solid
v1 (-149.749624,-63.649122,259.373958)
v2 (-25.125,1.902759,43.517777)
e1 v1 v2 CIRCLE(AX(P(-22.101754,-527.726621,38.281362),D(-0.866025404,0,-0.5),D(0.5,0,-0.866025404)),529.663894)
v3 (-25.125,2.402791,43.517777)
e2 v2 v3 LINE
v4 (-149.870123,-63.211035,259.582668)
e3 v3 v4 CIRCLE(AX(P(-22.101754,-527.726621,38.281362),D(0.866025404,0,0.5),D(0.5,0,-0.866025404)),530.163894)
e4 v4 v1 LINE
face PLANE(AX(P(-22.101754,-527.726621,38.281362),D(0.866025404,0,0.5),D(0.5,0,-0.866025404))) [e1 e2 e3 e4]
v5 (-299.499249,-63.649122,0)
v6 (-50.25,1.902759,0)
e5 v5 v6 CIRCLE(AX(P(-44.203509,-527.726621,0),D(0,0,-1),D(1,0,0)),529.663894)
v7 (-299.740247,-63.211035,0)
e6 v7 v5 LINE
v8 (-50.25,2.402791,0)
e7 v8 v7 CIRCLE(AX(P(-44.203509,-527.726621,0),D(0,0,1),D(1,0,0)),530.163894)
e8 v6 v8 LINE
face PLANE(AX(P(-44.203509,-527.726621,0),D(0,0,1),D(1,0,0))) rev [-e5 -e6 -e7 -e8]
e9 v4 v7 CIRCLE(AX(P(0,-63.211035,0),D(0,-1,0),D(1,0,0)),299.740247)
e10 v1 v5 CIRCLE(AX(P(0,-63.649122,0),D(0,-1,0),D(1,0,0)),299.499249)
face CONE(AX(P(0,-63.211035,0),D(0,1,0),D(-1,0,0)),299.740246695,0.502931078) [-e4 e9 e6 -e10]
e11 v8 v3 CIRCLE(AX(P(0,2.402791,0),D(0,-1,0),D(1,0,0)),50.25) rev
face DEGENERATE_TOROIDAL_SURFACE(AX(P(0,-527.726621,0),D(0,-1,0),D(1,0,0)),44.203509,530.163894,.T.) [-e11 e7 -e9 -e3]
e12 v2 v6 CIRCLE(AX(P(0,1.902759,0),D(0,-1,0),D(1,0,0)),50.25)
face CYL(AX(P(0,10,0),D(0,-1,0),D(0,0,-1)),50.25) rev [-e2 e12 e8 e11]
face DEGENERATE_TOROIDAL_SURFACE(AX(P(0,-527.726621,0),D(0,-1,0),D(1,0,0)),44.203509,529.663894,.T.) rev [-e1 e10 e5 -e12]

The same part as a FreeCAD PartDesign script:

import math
import FreeCAD as App
import Part
import Sketcher
Q = App.Units.Quantity

doc = App.newDocument("Part")
params = doc.addObject("Spreadsheet::Sheet", "Params")
for row, (alias, value) in enumerate([
    ("sketch1_width", "35 mm"),
    ("sketch1_height", "0.5 mm"),
    ("revolution_angle", "60 deg"),
    ("sketch2_diameter", "100.5 mm"),
    ("pocket1_length", "10 mm"),
], start=1):
    params.set(f"A{row}", alias)
    params.set(f"B{row}", "=" + value)
    params.setAlias(f"B{row}", alias)

body = doc.addObject("PartDesign::Body", "Body")

sketch1 = body.newObject("Sketcher::SketchObject", "Sketch")
sketch1.AttachmentSupport = (doc.getObject("XY_Plane"), [""])
sketch1.MapMode = "FlatFace"
sketch1.addGeometry(Part.LineSegment(App.Vector(-45, 1.9, 0), App.Vector(-10, 1.9, 0)), False)
sketch1.addGeometry(Part.LineSegment(App.Vector(-10, 1.9, 0), App.Vector(-10, 2.4, 0)), False)
sketch1.addGeometry(Part.LineSegment(App.Vector(-10, 2.4, 0), App.Vector(-45, 2.4, 0)), False)
sketch1.addGeometry(Part.ArcOfCircle(Part.Circle(App.Vector(-44.2, -527.7, 0), App.Vector(0, 0, 1), 530.2), math.radians(90.09), math.radians(90.21)), False)
sketch1.addGeometry(Part.ArcOfCircle(Part.Circle(App.Vector(-44.2, -527.7, 0), App.Vector(0, 0, 1), 530.2), math.radians(90), math.radians(119)), False)
sketch1.addGeometry(Part.LineSegment(App.Vector(-299.7, -63.2, 0), App.Vector(-299.5, -63.6, 0)), False)
sketch1.addGeometry(Part.ArcOfCircle(Part.Circle(App.Vector(-44.2, -527.7, 0), App.Vector(0, 0, 1), 529.7), math.radians(90), math.radians(119)), False)
sketch1.addGeometry(Part.ArcOfCircle(Part.Circle(App.Vector(-44.2, -527.7, 0), App.Vector(0, 0, 1), 529.7), math.radians(90.09), math.radians(90.21)), False)
sketch1.addConstraint(Sketcher.Constraint("Coincident", 0, 2, 1, 1))
sketch1.addConstraint(Sketcher.Constraint("Coincident", 1, 2, 2, 1))
sketch1.addConstraint(Sketcher.Constraint("Coincident", 2, 2, 3, 1))
sketch1.addConstraint(Sketcher.Constraint("Coincident", 3, 2, 4, 1))
sketch1.addConstraint(Sketcher.Constraint("Coincident", 4, 2, 5, 1))
sketch1.addConstraint(Sketcher.Constraint("Coincident", 5, 2, 6, 2))
sketch1.addConstraint(Sketcher.Constraint("Coincident", 6, 1, 7, 2))
sketch1.addConstraint(Sketcher.Constraint("Coincident", 7, 1, 0, 1))
sketch1.addConstraint(Sketcher.Constraint("Horizontal", 0))
sketch1.addConstraint(Sketcher.Constraint("Vertical", 1))
sketch1.addConstraint(Sketcher.Constraint("Horizontal", 2))
sketch1.addConstraint(Sketcher.Constraint("Coincident", 6, 3, 4, 3))
sketch1.addConstraint(Sketcher.Constraint("Vertical", 3, 3, 4, 3))
sketch1.addConstraint(Sketcher.Constraint("Vertical", 6, 3, 7, 3))
sketch1.addConstraint(Sketcher.Constraint("DistanceX", 0, 1, 0, 2, 35.0))
sketch1.addConstraint(Sketcher.Constraint("DistanceY", 1, 1, 1, 2, 0.5))
sketch1.addConstraint(Sketcher.Constraint("DistanceX", 0, 2, -1, 1, 10.0))
sketch1.addConstraint(Sketcher.Constraint("Radius", 3, 530.164009))
sketch1.addConstraint(Sketcher.Constraint("Radius", 4, 530.163894))
sketch1.addConstraint(Sketcher.Constraint("Radius", 7, 529.664616))
sketch1.addConstraint(Sketcher.Constraint("DistanceX", 2, 2, 2, 1, 35.000376))
sketch1.addConstraint(Sketcher.Constraint("DistanceX", 3, 3, -1, 1, 44.203509))
sketch1.addConstraint(Sketcher.Constraint("DistanceY", 4, 3, -1, 1, 527.726621))
sketch1.addConstraint(Sketcher.Constraint("DistanceX", 3, 2, -1, 1, 46.114971))
sketch1.addConstraint(Sketcher.Constraint("DistanceX", 5, 2, -1, 1, 299.499249))
sketch1.addConstraint(Sketcher.Constraint("DistanceX", 6, 1, -1, 1, 46.113168))
sketch1.addConstraint(Sketcher.Constraint("Angle", 5, Q("-61.184172 deg")))
sketch1.setExpression("Constraints[14]", "Params.sketch1_width")
sketch1.setExpression("Constraints[15]", "Params.sketch1_height")
revolution = body.newObject("PartDesign::Revolution", "Revolution")
revolution.Profile = sketch1
revolution.ReferenceAxis = (sketch1, ["V_Axis"])
revolution.setExpression("Angle", "Params.revolution_angle")

sketch2 = body.newObject("Sketcher::SketchObject", "Sketch001")
sketch2.AttachmentSupport = (doc.getObject("XZ_Plane"), [""])
sketch2.MapMode = "FlatFace"
sketch2.addGeometry(Part.Circle(App.Vector(0, 0, 0), App.Vector(0, 0, 1), 50), False)
sketch2.addConstraint(Sketcher.Constraint("Coincident", 0, 3, -1, 1))
sketch2.addConstraint(Sketcher.Constraint("Diameter", 0, 100.5))
sketch2.setExpression("Constraints[1]", "Params.sketch2_diameter")
pocket1 = body.newObject("PartDesign::Pocket", "Pocket")
pocket1.Profile = sketch2
pocket1.setExpression("Length", "Params.pocket1_length")

doc.recompute()
